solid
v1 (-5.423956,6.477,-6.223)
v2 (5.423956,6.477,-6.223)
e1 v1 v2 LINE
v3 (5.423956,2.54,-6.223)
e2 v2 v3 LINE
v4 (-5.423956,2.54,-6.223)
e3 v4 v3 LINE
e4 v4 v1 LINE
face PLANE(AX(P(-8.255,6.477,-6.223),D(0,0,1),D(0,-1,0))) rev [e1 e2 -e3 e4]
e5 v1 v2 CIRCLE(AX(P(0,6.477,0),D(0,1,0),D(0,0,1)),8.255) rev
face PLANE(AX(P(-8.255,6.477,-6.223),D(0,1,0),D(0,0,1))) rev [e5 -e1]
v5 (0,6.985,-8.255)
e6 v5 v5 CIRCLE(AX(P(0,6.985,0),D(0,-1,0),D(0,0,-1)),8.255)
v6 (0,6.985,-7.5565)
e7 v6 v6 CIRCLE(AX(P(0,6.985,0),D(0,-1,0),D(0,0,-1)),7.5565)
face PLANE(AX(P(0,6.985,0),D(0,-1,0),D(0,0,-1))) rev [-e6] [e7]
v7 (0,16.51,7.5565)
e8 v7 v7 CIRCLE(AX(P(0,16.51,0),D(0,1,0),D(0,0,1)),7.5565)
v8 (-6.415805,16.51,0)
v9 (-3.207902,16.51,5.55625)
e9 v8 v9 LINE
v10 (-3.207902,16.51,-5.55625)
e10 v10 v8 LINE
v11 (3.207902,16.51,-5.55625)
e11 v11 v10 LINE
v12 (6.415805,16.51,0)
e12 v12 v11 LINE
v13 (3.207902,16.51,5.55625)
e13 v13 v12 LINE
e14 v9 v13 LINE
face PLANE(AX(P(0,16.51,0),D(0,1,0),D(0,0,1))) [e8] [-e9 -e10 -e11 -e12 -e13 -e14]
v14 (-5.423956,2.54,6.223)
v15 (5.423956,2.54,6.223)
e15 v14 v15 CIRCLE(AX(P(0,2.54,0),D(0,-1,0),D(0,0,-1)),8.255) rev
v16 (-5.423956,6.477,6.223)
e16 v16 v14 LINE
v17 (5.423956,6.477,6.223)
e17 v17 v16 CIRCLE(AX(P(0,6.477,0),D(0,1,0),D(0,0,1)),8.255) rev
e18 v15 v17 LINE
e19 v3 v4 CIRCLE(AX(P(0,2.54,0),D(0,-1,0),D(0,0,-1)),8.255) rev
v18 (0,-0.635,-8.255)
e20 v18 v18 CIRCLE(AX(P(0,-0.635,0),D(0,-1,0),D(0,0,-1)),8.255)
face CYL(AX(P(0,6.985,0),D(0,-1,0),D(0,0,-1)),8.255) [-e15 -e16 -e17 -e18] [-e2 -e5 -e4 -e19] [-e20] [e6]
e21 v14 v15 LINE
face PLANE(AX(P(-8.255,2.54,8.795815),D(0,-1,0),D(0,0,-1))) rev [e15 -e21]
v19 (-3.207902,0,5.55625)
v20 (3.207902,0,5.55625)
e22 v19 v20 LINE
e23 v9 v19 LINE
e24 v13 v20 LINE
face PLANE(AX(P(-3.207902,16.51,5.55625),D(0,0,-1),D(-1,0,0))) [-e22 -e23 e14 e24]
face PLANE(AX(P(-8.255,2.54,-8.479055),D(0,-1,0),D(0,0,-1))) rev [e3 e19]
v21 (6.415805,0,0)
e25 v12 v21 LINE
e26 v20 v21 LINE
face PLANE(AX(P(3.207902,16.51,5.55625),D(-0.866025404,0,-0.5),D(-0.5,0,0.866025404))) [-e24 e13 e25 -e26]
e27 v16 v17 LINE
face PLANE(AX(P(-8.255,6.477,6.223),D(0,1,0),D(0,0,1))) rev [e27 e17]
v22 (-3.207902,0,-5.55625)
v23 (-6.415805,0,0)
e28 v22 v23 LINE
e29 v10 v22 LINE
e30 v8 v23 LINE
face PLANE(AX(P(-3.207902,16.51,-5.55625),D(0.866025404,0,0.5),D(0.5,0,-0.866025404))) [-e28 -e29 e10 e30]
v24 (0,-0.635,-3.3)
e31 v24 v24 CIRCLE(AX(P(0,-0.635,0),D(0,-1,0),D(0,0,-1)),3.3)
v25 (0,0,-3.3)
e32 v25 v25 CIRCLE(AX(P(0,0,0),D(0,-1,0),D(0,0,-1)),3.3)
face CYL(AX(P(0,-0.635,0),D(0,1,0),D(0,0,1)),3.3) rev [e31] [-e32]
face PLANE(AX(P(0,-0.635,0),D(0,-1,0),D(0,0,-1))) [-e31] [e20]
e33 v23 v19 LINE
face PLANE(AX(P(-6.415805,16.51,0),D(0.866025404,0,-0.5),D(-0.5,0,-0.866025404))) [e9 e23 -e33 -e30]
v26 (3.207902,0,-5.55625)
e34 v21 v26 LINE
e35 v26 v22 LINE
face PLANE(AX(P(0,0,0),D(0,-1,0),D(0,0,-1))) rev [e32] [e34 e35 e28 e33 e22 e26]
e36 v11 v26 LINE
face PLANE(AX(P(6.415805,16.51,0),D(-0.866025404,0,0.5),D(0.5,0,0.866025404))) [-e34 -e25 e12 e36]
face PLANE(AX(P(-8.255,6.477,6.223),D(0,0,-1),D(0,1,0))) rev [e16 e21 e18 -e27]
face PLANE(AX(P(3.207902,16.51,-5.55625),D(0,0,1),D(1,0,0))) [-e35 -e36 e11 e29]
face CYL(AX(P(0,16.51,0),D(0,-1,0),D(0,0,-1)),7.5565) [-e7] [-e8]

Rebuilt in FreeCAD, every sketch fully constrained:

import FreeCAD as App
import Part
import Sketcher
from FreeCAD import Vector
Q = App.Units.Quantity

doc = App.newDocument("Part")
body = doc.addObject("PartDesign::Body", "Body")

# Sketch on XZ plane
sketch1 = body.newObject("Sketcher::SketchObject", "Sketch")
sketch1.AttachmentSupport = (doc.getObject("XZ_Plane"), [""])
sketch1.MapMode = "FlatFace"
sketch1.addGeometry([
    Part.Circle(Vector(0, 0, 0), Vector(0, 0, 1), 8),  # 0
    Part.LineSegment(Vector(-6, 0, 0), Vector(-3, -6, 0)),  # 1
    Part.LineSegment(Vector(-3, -6, 0), Vector(3, -6, 0)),  # 2
    Part.LineSegment(Vector(3, -6, 0), Vector(6, 0, 0)),  # 3
    Part.LineSegment(Vector(6, 0, 0), Vector(3, 6, 0)),  # 4
    Part.LineSegment(Vector(3, 6, 0), Vector(-3, 6, 0)),  # 5
    Part.LineSegment(Vector(-3, 6, 0), Vector(-6, 0, 0)),  # 6
], False)
sketch1.addConstraint([
    Sketcher.Constraint("Coincident", 1, 2, 2, 1),
    Sketcher.Constraint("Coincident", 2, 2, 3, 1),
    Sketcher.Constraint("Coincident", 3, 2, 4, 1),
    Sketcher.Constraint("Coincident", 4, 2, 5, 1),
    Sketcher.Constraint("Coincident", 5, 2, 6, 1),
    Sketcher.Constraint("Coincident", 6, 2, 1, 1),
    Sketcher.Constraint("Horizontal", 2),
    Sketcher.Constraint("Horizontal", 5),
    Sketcher.Constraint("Coincident", 0, 3, -1, 1),
    Sketcher.Constraint("Symmetric", 1, 2, 4, 2, -1, 1),
    Sketcher.Constraint("Symmetric", 3, 2, 6, 2, -1, 1),
    Sketcher.Constraint("PointOnObject", 3, 2, -1),
    Sketcher.Constraint("Parallel", 3, 6),
    Sketcher.Constraint("Vertical", 2, 2, 4, 2),
    Sketcher.Constraint("Diameter", 0, Q("0.595 in")),
    Sketcher.Constraint("Angle", 1, Q("-60 deg")),
    Sketcher.Constraint("DistanceY", 1, 2, -1, 1, Q("0.21875 in")),
    Sketcher.Constraint("DistanceX", 2, 1, 2, 2, 6.415805),
])
pad1 = body.newObject("PartDesign::Pad", "Pad")
pad1.Profile = sketch1
pad1.Length = Q("0.65 in")
pad1.Reversed = True

# Sketch on XZ plane
sketch2 = body.newObject("Sketcher::SketchObject", "Sketch001")
sketch2.AttachmentSupport = (doc.getObject("XZ_Plane"), [""])
sketch2.MapMode = "FlatFace"
sketch2.addGeometry([
    Part.Circle(Vector(0, 0, 0), Vector(0, 0, 1), 7.6),
    Part.Circle(Vector(0, 0, 0), Vector(0, 0, 1), 3.3),
], False)
sketch2.addConstraint([
    Sketcher.Constraint("Coincident", 0, 3, -1, 1),
    Sketcher.Constraint("Coincident", 1, 3, -1, 1),
    Sketcher.Constraint("Diameter", 0, Q("0.595 in")),
    Sketcher.Constraint("Diameter", 1, 6.6),
])
pad2 = body.newObject("PartDesign::Pad", "Pad001")
pad2.Profile = sketch2
pad2.Length = Q("0.025 in")

# Sketch on XZ plane
sketch3 = body.newObject("Sketcher::SketchObject", "Sketch002")
sketch3.AttachmentSupport = (doc.getObject("XZ_Plane"), [""])
sketch3.MapMode = "FlatFace"
sketch3.AttachmentOffset = App.Placement(Vector(0, 0, 0.025 * 25.4), App.Rotation())
sketch3.addGeometry([
    Part.Circle(Vector(0, 0, 0), Vector(0, 0, 1), 8),
    Part.Circle(Vector(0, 0, 0), Vector(0, 0, 1), 8),
], False)
sketch3.addConstraint([
    Sketcher.Constraint("Coincident", 0, 3, -1, 1),
    Sketcher.Constraint("Coincident", 1, 3, -1, 1),
    Sketcher.Constraint("Diameter", 0, Q("0.65 in")),
    Sketcher.Constraint("Diameter", 1, Q("0.595 in")),
])
pad3 = body.newObject("PartDesign::Pad", "Pad002")
pad3.Profile = sketch3
pad3.Length = Q("0.3 in")
pad3.Reversed = True

# Sketch on YZ plane
sketch4 = body.newObject("Sketcher::SketchObject", "Sketch003")
sketch4.AttachmentSupport = (doc.getObject("YZ_Plane"), [""])
sketch4.MapMode = "FlatFace"
sketch4.addGeometry([
    Part.LineSegment(Vector(6.5, 8.8, 0), Vector(2.5, 8.8, 0)),  # 0
    Part.LineSegment(Vector(2.5, 8.8, 0), Vector(2.5, 6.2, 0)),  # 1
    Part.LineSegment(Vector(2.5, 6.2, 0), Vector(6.5, 6.2, 0)),  # 2
    Part.LineSegment(Vector(6.5, 6.2, 0), Vector(6.5, 8.8, 0)),  # 3
    Part.LineSegment(Vector(6.5, -6.2, 0), Vector(2.5, -6.2, 0)),  # 4
    Part.LineSegment(Vector(2.5, -6.2, 0), Vector(2.5, -8.5, 0)),  # 5
    Part.LineSegment(Vector(2.5, -8.5, 0), Vector(6.5, -8.5, 0)),  # 6
    Part.LineSegment(Vector(6.5, -8.5, 0), Vector(6.5, -6.2, 0)),  # 7
], False)
sketch4.addConstraint([
    Sketcher.Constraint("Coincident", 0, 2, 1, 1),
    Sketcher.Constraint("Coincident", 1, 2, 2, 1),
    Sketcher.Constraint("Coincident", 2, 2, 3, 1),
    Sketcher.Constraint("Coincident", 3, 2, 0, 1),
    Sketcher.Constraint("Coincident", 4, 2, 5, 1),
    Sketcher.Constraint("Coincident", 5, 2, 6, 1),
    Sketcher.Constraint("Coincident", 6, 2, 7, 1),
    Sketcher.Constraint("Coincident", 7, 2, 4, 1),
    Sketcher.Constraint("Horizontal", 0),
    Sketcher.Constraint("Vertical", 1),
    Sketcher.Constraint("Horizontal", 2),
    Sketcher.Constraint("Vertical", 3),
    Sketcher.Constraint("Horizontal", 4),
    Sketcher.Constraint("Vertical", 5),
    Sketcher.Constraint("Horizontal", 6),
    Sketcher.Constraint("Vertical", 7),
    Sketcher.Constraint("Symmetric", 1, 2, 4, 2, -1),
    Sketcher.Constraint("Vertical", 3, 2, 6, 2),
    Sketcher.Constraint("DistanceX", -1, 1, 0, 2, Q("0.1 in")),
    Sketcher.Constraint("DistanceX", 0, 2, 0, 1, Q("0.155 in")),
    Sketcher.Constraint("DistanceY", 4, 2, 1, 2, Q("0.49 in")),
    Sketcher.Constraint("DistanceY", 1, 2, 1, 1, 2.572815),
    Sketcher.Constraint("DistanceY", 5, 2, 5, 1, 2.256055),
])
pocket1 = body.newObject("PartDesign::Pocket", "Pocket")
pocket1.Profile = sketch4
pocket1.Type = "ThroughAll"
pocket1.Midplane = True

doc.recompute()
